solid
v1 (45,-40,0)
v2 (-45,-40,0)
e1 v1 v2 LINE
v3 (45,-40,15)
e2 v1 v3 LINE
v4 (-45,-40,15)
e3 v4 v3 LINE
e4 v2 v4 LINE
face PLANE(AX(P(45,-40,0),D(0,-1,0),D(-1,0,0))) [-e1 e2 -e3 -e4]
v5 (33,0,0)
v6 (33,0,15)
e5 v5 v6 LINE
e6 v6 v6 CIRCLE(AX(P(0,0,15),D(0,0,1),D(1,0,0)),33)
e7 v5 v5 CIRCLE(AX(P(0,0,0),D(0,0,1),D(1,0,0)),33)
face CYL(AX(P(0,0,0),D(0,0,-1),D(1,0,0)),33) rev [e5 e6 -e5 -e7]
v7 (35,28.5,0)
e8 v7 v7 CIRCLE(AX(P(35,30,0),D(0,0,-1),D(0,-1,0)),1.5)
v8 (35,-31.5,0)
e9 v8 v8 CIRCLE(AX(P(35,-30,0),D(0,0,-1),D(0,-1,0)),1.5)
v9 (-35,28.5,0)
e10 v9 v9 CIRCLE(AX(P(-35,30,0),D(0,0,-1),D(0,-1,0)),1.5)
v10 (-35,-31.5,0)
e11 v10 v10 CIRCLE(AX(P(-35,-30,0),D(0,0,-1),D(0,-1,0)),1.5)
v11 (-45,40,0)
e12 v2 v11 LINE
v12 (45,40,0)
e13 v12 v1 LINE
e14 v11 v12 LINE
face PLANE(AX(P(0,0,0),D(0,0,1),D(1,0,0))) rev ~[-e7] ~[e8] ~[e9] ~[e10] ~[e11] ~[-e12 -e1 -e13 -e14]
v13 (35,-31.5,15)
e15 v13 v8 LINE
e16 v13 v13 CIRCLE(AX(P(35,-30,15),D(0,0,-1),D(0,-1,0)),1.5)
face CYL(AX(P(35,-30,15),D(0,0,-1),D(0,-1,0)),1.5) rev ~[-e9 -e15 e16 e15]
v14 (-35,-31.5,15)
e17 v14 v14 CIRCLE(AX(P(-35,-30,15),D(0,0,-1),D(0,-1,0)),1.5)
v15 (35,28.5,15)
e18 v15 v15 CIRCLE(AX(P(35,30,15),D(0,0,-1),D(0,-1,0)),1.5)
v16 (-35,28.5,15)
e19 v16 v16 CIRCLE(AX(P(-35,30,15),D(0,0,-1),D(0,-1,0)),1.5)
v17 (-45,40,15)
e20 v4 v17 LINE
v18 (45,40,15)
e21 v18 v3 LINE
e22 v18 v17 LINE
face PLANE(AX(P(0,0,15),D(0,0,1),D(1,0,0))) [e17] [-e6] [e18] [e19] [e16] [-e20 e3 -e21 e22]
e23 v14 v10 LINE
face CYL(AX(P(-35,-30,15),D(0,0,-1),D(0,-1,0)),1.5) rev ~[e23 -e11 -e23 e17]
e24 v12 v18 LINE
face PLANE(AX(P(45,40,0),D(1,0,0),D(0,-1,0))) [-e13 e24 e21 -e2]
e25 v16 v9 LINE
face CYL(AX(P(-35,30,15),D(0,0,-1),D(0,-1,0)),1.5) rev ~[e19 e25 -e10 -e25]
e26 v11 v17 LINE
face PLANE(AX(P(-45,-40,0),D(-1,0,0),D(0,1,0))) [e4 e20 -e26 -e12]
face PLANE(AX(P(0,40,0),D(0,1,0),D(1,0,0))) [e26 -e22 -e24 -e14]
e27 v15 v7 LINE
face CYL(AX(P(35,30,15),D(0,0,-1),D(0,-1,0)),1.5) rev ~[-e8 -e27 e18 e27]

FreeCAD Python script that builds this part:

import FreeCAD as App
import Part
import Sketcher
Q = App.Units.Quantity

doc = App.newDocument("Part")
body = doc.addObject("PartDesign::Body", "Body")

# Sketch on XY plane
sketch1 = body.newObject("Sketcher::SketchObject", "Sketch")
sketch1.AttachmentSupport = (doc.getObject("XY_Plane"), [""])
sketch1.MapMode = "FlatFace"
sketch1.addGeometry(Part.LineSegment(App.Vector(45, -40, 0), App.Vector(45, 40, 0)), False)
sketch1.addGeometry(Part.LineSegment(App.Vector(45, 40, 0), App.Vector(-45, 40, 0)), False)
sketch1.addGeometry(Part.LineSegment(App.Vector(-45, 40, 0), App.Vector(-45, -40, 0)), False)
sketch1.addGeometry(Part.LineSegment(App.Vector(-45, -40, 0), App.Vector(45, -40, 0)), False)
sketch1.addGeometry(Part.Circle(App.Vector(0, 0, 0), App.Vector(0, 0, 1), 33), False)
sketch1.addConstraint(Sketcher.Constraint("Coincident", 0, 2, 1, 1))
sketch1.addConstraint(Sketcher.Constraint("Coincident", 1, 2, 2, 1))
sketch1.addConstraint(Sketcher.Constraint("Coincident", 2, 2, 3, 1))
sketch1.addConstraint(Sketcher.Constraint("Coincident", 3, 2, 0, 1))
sketch1.addConstraint(Sketcher.Constraint("Vertical", 0))
sketch1.addConstraint(Sketcher.Constraint("Horizontal", 1))
sketch1.addConstraint(Sketcher.Constraint("Vertical", 2))
sketch1.addConstraint(Sketcher.Constraint("Horizontal", 3))
sketch1.addConstraint(Sketcher.Constraint("Coincident", 4, 3, -1, 1))
sketch1.addConstraint(Sketcher.Constraint("Symmetric", 0, 2, 2, 2, -1, 1))
sketch1.addConstraint(Sketcher.Constraint("Diameter", 4, Q("66 mm")))
sketch1.addConstraint(Sketcher.Constraint("DistanceX", 1, 2, 1, 1, Q("90 mm")))
sketch1.addConstraint(Sketcher.Constraint("DistanceY", 0, 1, 0, 2, Q("80 mm")))
pad1 = body.newObject("PartDesign::Pad", "Pad")
pad1.Profile = sketch1
pad1.Length = 15

# Sketch on XY plane
sketch2 = body.newObject("Sketcher::SketchObject", "Sketch001")
sketch2.AttachmentSupport = (doc.getObject("XY_Plane"), [""])
sketch2.MapMode = "FlatFace"
sketch2.AttachmentOffset = App.Placement(App.Vector(0, 0, 15), App.Rotation())
sketch2.addGeometry(Part.Circle(App.Vector(-35, 30, 0), App.Vector(0, 0, 1), 1.5), False)
sketch2.addGeometry(Part.Circle(App.Vector(-35, -30, 0), App.Vector(0, 0, 1), 1.5), False)
sketch2.addGeometry(Part.Circle(App.Vector(35, -30, 0), App.Vector(0, 0, 1), 1.5), False)
sketch2.addGeometry(Part.Circle(App.Vector(35, 30, 0), App.Vector(0, 0, 1), 1.5), False)
sketch2.addConstraint(Sketcher.Constraint("Equal", 0, 1))
sketch2.addConstraint(Sketcher.Constraint("Equal", 1, 2))
sketch2.addConstraint(Sketcher.Constraint("Equal", 2, 3))
sketch2.addConstraint(Sketcher.Constraint("Symmetric", 0, 3, 2, 3, -1, 1))
sketch2.addConstraint(Sketcher.Constraint("Symmetric", 1, 3, 3, 3, -1, 1))
sketch2.addConstraint(Sketcher.Constraint("Symmetric", 1, 3, 2, 3, -2))
sketch2.addConstraint(Sketcher.Constraint("Diameter", 0, Q("3 mm")))
sketch2.addConstraint(Sketcher.Constraint("DistanceX", 0, 3, -1, 1, Q("35 mm")))
sketch2.addConstraint(Sketcher.Constraint("DistanceY", -1, 1, 0, 3, Q("30 mm")))
doc.recompute()
hole = body.newObject("PartDesign::Hole", "Hole")
hole.Profile = sketch2
hole.ThreadType = "None"
hole.Diameter = 3
hole.DepthType = "Dimension"
hole.Depth = 15
hole.DrillPoint = "Angled"
hole.DrillPointAngle = 118

doc.recompute()
